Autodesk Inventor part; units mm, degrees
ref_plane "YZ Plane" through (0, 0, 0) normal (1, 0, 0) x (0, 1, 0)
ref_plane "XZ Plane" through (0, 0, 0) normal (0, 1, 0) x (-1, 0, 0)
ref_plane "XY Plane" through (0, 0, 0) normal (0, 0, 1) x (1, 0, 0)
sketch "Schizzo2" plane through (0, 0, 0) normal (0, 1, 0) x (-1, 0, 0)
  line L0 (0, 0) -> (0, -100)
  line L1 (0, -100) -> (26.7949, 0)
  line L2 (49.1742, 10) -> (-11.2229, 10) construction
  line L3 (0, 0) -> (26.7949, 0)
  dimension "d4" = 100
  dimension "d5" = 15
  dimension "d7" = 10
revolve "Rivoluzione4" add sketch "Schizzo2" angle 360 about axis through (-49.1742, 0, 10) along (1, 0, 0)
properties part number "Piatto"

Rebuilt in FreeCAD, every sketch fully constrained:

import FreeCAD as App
import Part
import Sketcher
Q = App.Units.Quantity


def add_polygon(sketch, points):
    """Adds a closed chain of lines whose ends are joined by coincident constraints."""
    first, n = sketch.GeometryCount, len(points)
    for a, b in zip(points, points[1:] + points[:1]):
        sketch.addGeometry(Part.LineSegment(App.Vector(*a, 0), App.Vector(*b, 0)), False)
    for i in range(n):
        sketch.addConstraint(Sketcher.Constraint("Coincident", first + i, 2, first + (i + 1) % n, 1))

doc = App.newDocument("Part")
body = doc.addObject("PartDesign::Body", "Body")

# Sketch on XZ plane
sketch1 = body.newObject("Sketcher::SketchObject", "Sketch")
sketch1.AttachmentSupport = (doc.getObject("XZ_Plane"), [""])
sketch1.MapMode = "FlatFace"
add_polygon(sketch1, [(-27, 0), (0, 0), (0, -100)])  # lines 0-2
sketch1.addGeometry(Part.LineSegment(App.Vector(-27, 10, 0), App.Vector(0, 10, 0)), True)  # axis
sketch1.addConstraint(Sketcher.Constraint("Horizontal", 0))
sketch1.addConstraint(Sketcher.Constraint("Vertical", 1))
sketch1.addConstraint(Sketcher.Constraint("Horizontal", 3))
sketch1.addConstraint(Sketcher.Constraint("Coincident", 0, 2, -1, 1))
sketch1.addConstraint(Sketcher.Constraint("PointOnObject", 3, 2, -2))
sketch1.addConstraint(Sketcher.Constraint("Vertical", 2, 2, 3, 1))
sketch1.addConstraint(Sketcher.Constraint("DistanceY", 1, 2, 1, 1, Q("3.937 in")))
sketch1.addConstraint(Sketcher.Constraint("Angle", 2, Q("105 deg")))
sketch1.addConstraint(Sketcher.Constraint("DistanceY", -1, 1, 3, 1, Q("0.3937 in")))
revolution = body.newObject("PartDesign::Revolution", "Revolution")
revolution.Profile = sketch1
revolution.ReferenceAxis = (sketch1, ["Axis0"])
revolution.Angle = 360

doc.recompute()
